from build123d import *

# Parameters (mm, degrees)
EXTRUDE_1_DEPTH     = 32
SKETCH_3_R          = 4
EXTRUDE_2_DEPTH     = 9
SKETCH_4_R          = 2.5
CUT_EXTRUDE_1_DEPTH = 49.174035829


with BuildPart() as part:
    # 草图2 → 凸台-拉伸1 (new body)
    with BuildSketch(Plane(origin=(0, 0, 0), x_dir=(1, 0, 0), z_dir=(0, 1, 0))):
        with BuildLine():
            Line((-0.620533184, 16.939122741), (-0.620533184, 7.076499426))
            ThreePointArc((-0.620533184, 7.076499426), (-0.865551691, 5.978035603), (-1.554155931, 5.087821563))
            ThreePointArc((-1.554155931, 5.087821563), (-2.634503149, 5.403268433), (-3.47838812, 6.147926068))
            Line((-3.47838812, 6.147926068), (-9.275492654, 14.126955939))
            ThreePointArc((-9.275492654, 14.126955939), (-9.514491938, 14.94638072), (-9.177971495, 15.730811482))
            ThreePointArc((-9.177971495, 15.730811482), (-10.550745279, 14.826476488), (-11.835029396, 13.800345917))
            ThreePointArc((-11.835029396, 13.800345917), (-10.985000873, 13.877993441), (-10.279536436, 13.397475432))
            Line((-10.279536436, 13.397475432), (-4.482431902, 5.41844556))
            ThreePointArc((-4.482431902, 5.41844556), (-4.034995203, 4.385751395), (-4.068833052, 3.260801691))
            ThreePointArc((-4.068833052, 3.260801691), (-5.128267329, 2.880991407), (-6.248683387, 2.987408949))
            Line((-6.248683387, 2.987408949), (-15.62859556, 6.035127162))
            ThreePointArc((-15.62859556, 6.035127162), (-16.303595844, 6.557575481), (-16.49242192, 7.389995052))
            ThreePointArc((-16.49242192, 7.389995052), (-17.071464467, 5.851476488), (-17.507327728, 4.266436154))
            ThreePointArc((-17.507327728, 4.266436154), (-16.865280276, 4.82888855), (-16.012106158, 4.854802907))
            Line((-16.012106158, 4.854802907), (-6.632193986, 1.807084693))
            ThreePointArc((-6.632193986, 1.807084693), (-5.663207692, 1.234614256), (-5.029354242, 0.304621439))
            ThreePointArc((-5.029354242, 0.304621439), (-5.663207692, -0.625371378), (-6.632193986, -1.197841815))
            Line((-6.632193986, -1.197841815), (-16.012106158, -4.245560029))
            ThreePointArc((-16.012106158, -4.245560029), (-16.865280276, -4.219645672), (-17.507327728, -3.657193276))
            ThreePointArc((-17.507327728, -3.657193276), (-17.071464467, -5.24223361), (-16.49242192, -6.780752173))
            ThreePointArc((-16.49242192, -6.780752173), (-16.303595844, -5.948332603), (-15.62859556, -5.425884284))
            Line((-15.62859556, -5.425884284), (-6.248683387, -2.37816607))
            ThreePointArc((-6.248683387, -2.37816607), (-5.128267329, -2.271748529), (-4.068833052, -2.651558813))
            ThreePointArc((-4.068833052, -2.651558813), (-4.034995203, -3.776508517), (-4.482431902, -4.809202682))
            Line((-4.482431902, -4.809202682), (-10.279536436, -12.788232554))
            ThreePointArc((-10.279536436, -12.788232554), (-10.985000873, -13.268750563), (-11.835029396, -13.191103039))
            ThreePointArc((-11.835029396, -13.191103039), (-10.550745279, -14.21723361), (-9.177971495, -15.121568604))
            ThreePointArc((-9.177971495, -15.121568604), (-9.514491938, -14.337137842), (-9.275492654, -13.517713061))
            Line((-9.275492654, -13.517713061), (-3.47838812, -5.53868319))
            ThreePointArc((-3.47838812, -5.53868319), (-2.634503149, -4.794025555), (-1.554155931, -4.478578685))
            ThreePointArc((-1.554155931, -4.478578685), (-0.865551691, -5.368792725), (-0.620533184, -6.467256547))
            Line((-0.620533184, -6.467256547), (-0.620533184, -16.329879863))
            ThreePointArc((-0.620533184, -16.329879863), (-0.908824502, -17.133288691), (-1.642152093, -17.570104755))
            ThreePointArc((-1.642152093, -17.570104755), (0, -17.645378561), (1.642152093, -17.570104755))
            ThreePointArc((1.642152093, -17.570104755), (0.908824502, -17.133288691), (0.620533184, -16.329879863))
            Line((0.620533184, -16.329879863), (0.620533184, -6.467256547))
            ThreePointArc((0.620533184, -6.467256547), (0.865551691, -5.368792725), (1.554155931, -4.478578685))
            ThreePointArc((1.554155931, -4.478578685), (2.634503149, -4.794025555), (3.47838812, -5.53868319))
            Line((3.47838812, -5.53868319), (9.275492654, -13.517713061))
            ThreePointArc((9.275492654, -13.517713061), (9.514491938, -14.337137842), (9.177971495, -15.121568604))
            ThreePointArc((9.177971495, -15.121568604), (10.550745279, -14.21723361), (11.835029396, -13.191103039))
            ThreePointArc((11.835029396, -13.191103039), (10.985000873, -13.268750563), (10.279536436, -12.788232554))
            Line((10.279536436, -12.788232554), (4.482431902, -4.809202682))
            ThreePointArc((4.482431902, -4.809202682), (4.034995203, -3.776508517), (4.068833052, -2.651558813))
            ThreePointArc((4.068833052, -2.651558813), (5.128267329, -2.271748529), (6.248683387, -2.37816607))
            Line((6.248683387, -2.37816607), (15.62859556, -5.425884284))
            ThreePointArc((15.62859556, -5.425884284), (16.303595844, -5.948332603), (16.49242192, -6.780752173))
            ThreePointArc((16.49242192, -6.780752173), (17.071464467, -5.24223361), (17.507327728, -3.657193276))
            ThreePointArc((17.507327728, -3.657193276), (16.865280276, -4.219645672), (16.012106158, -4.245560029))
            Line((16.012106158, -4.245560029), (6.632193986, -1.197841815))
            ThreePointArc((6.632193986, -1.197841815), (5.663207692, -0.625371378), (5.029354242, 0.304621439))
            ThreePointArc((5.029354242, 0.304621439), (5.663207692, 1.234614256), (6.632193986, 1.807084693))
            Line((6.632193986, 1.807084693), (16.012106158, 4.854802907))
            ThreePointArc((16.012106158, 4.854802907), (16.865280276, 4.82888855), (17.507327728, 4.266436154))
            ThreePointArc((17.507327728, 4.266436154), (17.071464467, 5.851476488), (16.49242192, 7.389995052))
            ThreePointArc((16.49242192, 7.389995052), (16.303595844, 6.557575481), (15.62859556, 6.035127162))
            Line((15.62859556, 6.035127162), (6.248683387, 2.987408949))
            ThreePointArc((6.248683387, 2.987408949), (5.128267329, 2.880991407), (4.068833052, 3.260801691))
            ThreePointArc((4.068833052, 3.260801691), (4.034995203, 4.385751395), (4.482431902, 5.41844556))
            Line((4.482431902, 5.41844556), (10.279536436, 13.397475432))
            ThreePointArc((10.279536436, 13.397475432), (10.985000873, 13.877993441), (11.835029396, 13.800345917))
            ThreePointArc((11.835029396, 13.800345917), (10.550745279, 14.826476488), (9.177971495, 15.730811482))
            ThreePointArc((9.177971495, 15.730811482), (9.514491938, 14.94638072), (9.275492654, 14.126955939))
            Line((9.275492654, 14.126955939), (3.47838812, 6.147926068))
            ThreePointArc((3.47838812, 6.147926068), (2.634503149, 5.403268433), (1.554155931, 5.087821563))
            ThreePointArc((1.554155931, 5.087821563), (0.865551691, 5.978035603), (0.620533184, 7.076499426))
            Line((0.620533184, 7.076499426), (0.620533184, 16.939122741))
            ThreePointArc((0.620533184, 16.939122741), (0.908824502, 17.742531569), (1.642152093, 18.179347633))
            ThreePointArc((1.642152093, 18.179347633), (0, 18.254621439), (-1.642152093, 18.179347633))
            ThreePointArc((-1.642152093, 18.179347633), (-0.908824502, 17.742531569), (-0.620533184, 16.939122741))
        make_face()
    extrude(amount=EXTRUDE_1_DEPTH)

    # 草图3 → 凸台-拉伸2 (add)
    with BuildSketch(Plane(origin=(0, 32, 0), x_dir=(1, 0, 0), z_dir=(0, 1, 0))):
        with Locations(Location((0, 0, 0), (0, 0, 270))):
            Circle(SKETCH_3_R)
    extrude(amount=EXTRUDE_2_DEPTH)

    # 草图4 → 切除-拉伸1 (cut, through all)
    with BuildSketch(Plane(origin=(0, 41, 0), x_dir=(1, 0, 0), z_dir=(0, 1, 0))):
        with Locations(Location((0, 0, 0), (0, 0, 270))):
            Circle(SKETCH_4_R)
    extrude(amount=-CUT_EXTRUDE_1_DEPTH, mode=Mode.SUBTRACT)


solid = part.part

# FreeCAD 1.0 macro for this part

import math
import FreeCAD as App
import Part
import Sketcher
from FreeCAD import Vector

doc = App.newDocument("Part")
params = doc.addObject("Spreadsheet::Sheet", "Params")
for row, (alias, value) in enumerate([
    ("sketch1_radius", "17.95 mm"),
    ("sketch1_radius2", "17.95 mm"),
    ("sketch1_radius3", "17.95 mm"),
    ("sketch1_radius4", "17.95 mm"),
    ("sketch1_radius5", "17.95 mm"),
    ("pad1_length", "32 mm"),
    ("sketch2_diameter", "8 mm"),
    ("pad2_length", "9 mm"),
    ("sketch3_diameter", "5 mm"),
], start=1):
    params.set(f"A{row}", alias)
    params.set(f"B{row}", "=" + value)
    params.setAlias(f"B{row}", alias)

body = doc.addObject("PartDesign::Body", "Body")

# Sketch on XZ plane
sketch1 = body.newObject("Sketcher::SketchObject", "Sketch")
sketch1.AttachmentSupport = (doc.getObject("XZ_Plane"), [""])
sketch1.MapMode = "FlatFace"
sketch1.addGeometry([
    Part.LineSegment(Vector(-0.620533, -16.939123, 0), Vector(-0.620533, -7.076499, 0)),  # 0
    Part.ArcOfCircle(Part.Circle(Vector(-3.205352, -7.076499, 0), Vector(0, 0, 1), 2.584819), math.radians(0), math.radians(50.297207)),  # 1
    Part.ArcOfCircle(Part.Circle(Vector(-1.387226, -7.667244, 0), Vector(0, 0, 1), 2.584819), math.radians(93.702793), math.radians(144)),  # 2
    Part.LineSegment(Vector(-3.478388, -6.147926, 0), Vector(-9.275493, -14.126956, 0)),  # 3
    Part.ArcOfCircle(Part.Circle(Vector(-8.253208, -14.869689, 0), Vector(0, 0, 1), 1.263614), math.radians(144), math.radians(222.959081)),  # 4
    Part.ArcOfCircle(Part.Circle(Vector(0, -0.304621, 0), Vector(0, 0, 1), 17.95), math.radians(-131.249032), math.radians(-120.750968)),  # 5
    Part.ArcOfCircle(Part.Circle(Vector(-11.301821, -12.654742, 0), Vector(0, 0, 1), 1.263614), math.radians(-114.959081), math.radians(-36)),  # 6
    Part.LineSegment(Vector(-10.279536, -13.397475, 0), Vector(-4.482432, -5.418446, 0)),  # 7
    Part.ArcOfCircle(Part.Circle(Vector(-6.573594, -3.899127, 0), Vector(0, 0, 1), 2.584819), math.radians(-36), math.radians(14.297207)),  # 8
    Part.ArcOfCircle(Part.Circle(Vector(-5.44993, -5.445718, 0), Vector(0, 0, 1), 2.584819), math.radians(57.702793), math.radians(108)),  # 9
    Part.LineSegment(Vector(-6.248683, -2.987409, 0), Vector(-15.628596, -6.035127, 0)),  # 10
    Part.ArcOfCircle(Part.Circle(Vector(-15.238117, -7.236895, 0), Vector(0, 0, 1), 1.263614), math.radians(108), math.radians(186.959081)),  # 11
    Part.ArcOfCircle(Part.Circle(Vector(0, -0.304621, 0), Vector(0, 0, 1), 17.95), math.radians(-167.249032), math.radians(-156.750968)),  # 12
    Part.ArcOfCircle(Part.Circle(Vector(-16.402584, -3.653035, 0), Vector(0, 0, 1), 1.263614), math.radians(-150.959081), math.radians(-72)),  # 13
    Part.LineSegment(Vector(-16.012106, -4.854803, 0), Vector(-6.632194, -1.807085, 0)),  # 14
    Part.ArcOfCircle(Part.Circle(Vector(-7.430947, 0.651224, 0), Vector(0, 0, 1), 2.584819), math.radians(-72), math.radians(-21.702793)),  # 15
    Part.ArcOfCircle(Part.Circle(Vector(-7.430947, -1.260467, 0), Vector(0, 0, 1), 2.584819), math.radians(21.702793), math.radians(72)),  # 16
    Part.LineSegment(Vector(-6.632194, 1.197842, 0), Vector(-16.012106, 4.24556, 0)),  # 17
    Part.ArcOfCircle(Part.Circle(Vector(-16.402584, 3.043792, 0), Vector(0, 0, 1), 1.263614), math.radians(72), math.radians(150.959081)),  # 18
    Part.ArcOfCircle(Part.Circle(Vector(0, -0.304621, 0), Vector(0, 0, 1), 17.95), math.radians(156.750968), math.radians(167.249032)),  # 19
    Part.ArcOfCircle(Part.Circle(Vector(-15.238117, 6.627652, 0), Vector(0, 0, 1), 1.263614), math.radians(173.040919), math.radians(252)),  # 20
    Part.LineSegment(Vector(-15.628596, 5.425884, 0), Vector(-6.248683, 2.378166, 0)),  # 21
    Part.ArcOfCircle(Part.Circle(Vector(-5.44993, 4.836475, 0), Vector(0, 0, 1), 2.584819), math.radians(-108), math.radians(-57.702793)),  # 22
    Part.ArcOfCircle(Part.Circle(Vector(-6.573594, 3.289884, 0), Vector(0, 0, 1), 2.584819), math.radians(-14.297207), math.radians(36)),  # 23
    Part.LineSegment(Vector(-4.482432, 4.809203, 0), Vector(-10.279536, 12.788233, 0)),  # 24
    Part.ArcOfCircle(Part.Circle(Vector(-11.301821, 12.045499, 0), Vector(0, 0, 1), 1.263614), math.radians(36), math.radians(114.959081)),  # 25
    Part.ArcOfCircle(Part.Circle(Vector(0, -0.304621, 0), Vector(0, 0, 1), 17.95), math.radians(120.750968), math.radians(131.249032)),  # 26
    Part.ArcOfCircle(Part.Circle(Vector(-8.253208, 14.260446, 0), Vector(0, 0, 1), 1.263614), math.radians(137.040919), math.radians(216)),  # 27
    Part.LineSegment(Vector(-9.275493, 13.517713, 0), Vector(-3.478388, 5.538683, 0)),  # 28
    Part.ArcOfCircle(Part.Circle(Vector(-1.387226, 7.058002, 0), Vector(0, 0, 1), 2.584819), math.radians(-144), math.radians(-93.702793)),  # 29
    Part.ArcOfCircle(Part.Circle(Vector(-3.205352, 6.467257, 0), Vector(0, 0, 1), 2.584819), math.radians(-50.297207), math.radians(0)),  # 30
    Part.LineSegment(Vector(-0.620533, 6.467257, 0), Vector(-0.620533, 16.32988, 0)),  # 31
    Part.ArcOfCircle(Part.Circle(Vector(-1.884147, 16.32988, 0), Vector(0, 0, 1), 1.263614), math.radians(0), math.radians(78.959081)),  # 32
    Part.ArcOfCircle(Part.Circle(Vector(0, -0.304621, 0), Vector(0, 0, 1), 17.95), math.radians(84.750968), math.radians(95.249032)),  # 33
    Part.ArcOfCircle(Part.Circle(Vector(1.884147, 16.32988, 0), Vector(0, 0, 1), 1.263614), math.radians(101.040919), math.radians(180)),  # 34
    Part.LineSegment(Vector(0.620533, 16.32988, 0), Vector(0.620533, 6.467257, 0)),  # 35
    Part.ArcOfCircle(Part.Circle(Vector(3.205352, 6.467257, 0), Vector(0, 0, 1), 2.584819), math.radians(-180), math.radians(-129.702793)),  # 36
    Part.ArcOfCircle(Part.Circle(Vector(1.387226, 7.058002, 0), Vector(0, 0, 1), 2.584819), math.radians(-86.297207), math.radians(-36)),  # 37
    Part.LineSegment(Vector(3.478388, 5.538683, 0), Vector(9.275493, 13.517713, 0)),  # 38
    Part.ArcOfCircle(Part.Circle(Vector(8.253208, 14.260446, 0), Vector(0, 0, 1), 1.263614), math.radians(-36), math.radians(42.959081)),  # 39
    Part.ArcOfCircle(Part.Circle(Vector(0, -0.304621, 0), Vector(0, 0, 1), 17.95), math.radians(48.750968), math.radians(59.249032)),  # 40
    Part.ArcOfCircle(Part.Circle(Vector(11.301821, 12.045499, 0), Vector(0, 0, 1), 1.263614), math.radians(65.040919), math.radians(144)),  # 41
    Part.LineSegment(Vector(10.279536, 12.788233, 0), Vector(4.482432, 4.809203, 0)),  # 42
    Part.ArcOfCircle(Part.Circle(Vector(6.573594, 3.289884, 0), Vector(0, 0, 1), 2.584819), math.radians(144), math.radians(194.297207)),  # 43
    Part.ArcOfCircle(Part.Circle(Vector(5.44993, 4.836475, 0), Vector(0, 0, 1), 2.584819), math.radians(-122.297207), math.radians(-72)),  # 44
    Part.LineSegment(Vector(6.248683, 2.378166, 0), Vector(15.628596, 5.425884, 0)),  # 45
    Part.ArcOfCircle(Part.Circle(Vector(15.238117, 6.627652, 0), Vector(0, 0, 1), 1.263614), math.radians(-72), math.radians(6.959081)),  # 46
    Part.ArcOfCircle(Part.Circle(Vector(0, -0.304621, 0), Vector(0, 0, 1), 17.95), math.radians(12.750968), math.radians(23.249032)),  # 47
    Part.ArcOfCircle(Part.Circle(Vector(16.402584, 3.043792, 0), Vector(0, 0, 1), 1.263614), math.radians(29.040919), math.radians(108)),  # 48
    Part.LineSegment(Vector(16.012106, 4.24556, 0), Vector(6.632194, 1.197842, 0)),  # 49
    Part.ArcOfCircle(Part.Circle(Vector(7.430947, -1.260467, 0), Vector(0, 0, 1), 2.584819), math.radians(108), math.radians(158.297207)),  # 50
    Part.ArcOfCircle(Part.Circle(Vector(7.430947, 0.651224, 0), Vector(0, 0, 1), 2.584819), math.radians(-158.297207), math.radians(-108)),  # 51
    Part.LineSegment(Vector(6.632194, -1.807085, 0), Vector(16.012106, -4.854803, 0)),  # 52
    Part.ArcOfCircle(Part.Circle(Vector(16.402584, -3.653035, 0), Vector(0, 0, 1), 1.263614), math.radians(-108), math.radians(-29.040919)),  # 53
    Part.ArcOfCircle(Part.Circle(Vector(0, -0.304621, 0), Vector(0, 0, 1), 17.95), math.radians(-23.249032), math.radians(-12.750968)),  # 54
    Part.ArcOfCircle(Part.Circle(Vector(15.238117, -7.236895, 0), Vector(0, 0, 1), 1.263614), math.radians(-6.959081), math.radians(72)),  # 55
    Part.LineSegment(Vector(15.628596, -6.035127, 0), Vector(6.248683, -2.987409, 0)),  # 56
    Part.ArcOfCircle(Part.Circle(Vector(5.44993, -5.445718, 0), Vector(0, 0, 1), 2.584819), math.radians(72), math.radians(122.297207)),  # 57
    Part.ArcOfCircle(Part.Circle(Vector(6.573594, -3.899127, 0), Vector(0, 0, 1), 2.584819), math.radians(165.702793), math.radians(216)),  # 58
    Part.LineSegment(Vector(4.482432, -5.418446, 0), Vector(10.279536, -13.397475, 0)),  # 59
    Part.ArcOfCircle(Part.Circle(Vector(11.301821, -12.654742, 0), Vector(0, 0, 1), 1.263614), math.radians(-144), math.radians(-65.040919)),  # 60
    Part.ArcOfCircle(Part.Circle(Vector(0, -0.304621, 0), Vector(0, 0, 1), 17.95), math.radians(-59.249032), math.radians(-48.750968)),  # 61
    Part.ArcOfCircle(Part.Circle(Vector(8.253208, -14.869689, 0), Vector(0, 0, 1), 1.263614), math.radians(-42.959081), math.radians(36)),  # 62
    Part.LineSegment(Vector(9.275493, -14.126956, 0), Vector(3.478388, -6.147926, 0)),  # 63
    Part.ArcOfCircle(Part.Circle(Vector(1.387226, -7.667244, 0), Vector(0, 0, 1), 2.584819), math.radians(36), math.radians(86.297207)),  # 64
    Part.ArcOfCircle(Part.Circle(Vector(3.205352, -7.076499, 0), Vector(0, 0, 1), 2.584819), math.radians(129.702793), math.radians(180)),  # 65
    Part.LineSegment(Vector(0.620533, -7.076499, 0), Vector(0.620533, -16.939123, 0)),  # 66
    Part.ArcOfCircle(Part.Circle(Vector(1.884147, -16.939123, 0), Vector(0, 0, 1), 1.263614), math.radians(180), math.radians(258.959081)),  # 67
    Part.ArcOfCircle(Part.Circle(Vector(0, -0.304621, 0), Vector(0, 0, 1), 17.95), math.radians(-95.249032), math.radians(-84.750968)),  # 68
    Part.ArcOfCircle(Part.Circle(Vector(-1.884147, -16.939123, 0), Vector(0, 0, 1), 1.263614), math.radians(-78.959081), math.radians(0)),  # 69
], False)
sketch1.addConstraint([
    Sketcher.Constraint("Coincident", 0, 2, 1, 1),
    Sketcher.Constraint("Coincident", 1, 2, 2, 1),
    Sketcher.Constraint("Coincident", 2, 2, 3, 1),
    Sketcher.Constraint("Coincident", 3, 2, 4, 1),
    Sketcher.Constraint("Coincident", 4, 2, 5, 2),
    Sketcher.Constraint("Coincident", 5, 1, 6, 1),
    Sketcher.Constraint("Coincident", 6, 2, 7, 1),
    Sketcher.Constraint("Coincident", 7, 2, 8, 1),
    Sketcher.Constraint("Coincident", 8, 2, 9, 1),
    Sketcher.Constraint("Coincident", 9, 2, 10, 1),
    Sketcher.Constraint("Coincident", 10, 2, 11, 1),
    Sketcher.Constraint("Coincident", 11, 2, 12, 2),
    Sketcher.Constraint("Coincident", 12, 1, 13, 1),
    Sketcher.Constraint("Coincident", 13, 2, 14, 1),
    Sketcher.Constraint("Coincident", 14, 2, 15, 1),
    Sketcher.Constraint("Coincident", 15, 2, 16, 1),
    Sketcher.Constraint("Coincident", 16, 2, 17, 1),
    Sketcher.Constraint("Coincident", 17, 2, 18, 1),
    Sketcher.Constraint("Coincident", 18, 2, 19, 2),
    Sketcher.Constraint("Coincident", 19, 1, 20, 1),
    Sketcher.Constraint("Coincident", 20, 2, 21, 1),
    Sketcher.Constraint("Coincident", 21, 2, 22, 1),
    Sketcher.Constraint("Coincident", 22, 2, 23, 1),
    Sketcher.Constraint("Coincident", 23, 2, 24, 1),
    Sketcher.Constraint("Coincident", 24, 2, 25, 1),
    Sketcher.Constraint("Coincident", 25, 2, 26, 2),
    Sketcher.Constraint("Coincident", 26, 1, 27, 1),
    Sketcher.Constraint("Coincident", 27, 2, 28, 1),
    Sketcher.Constraint("Coincident", 28, 2, 29, 1),
    Sketcher.Constraint("Coincident", 29, 2, 30, 1),
    Sketcher.Constraint("Coincident", 30, 2, 31, 1),
    Sketcher.Constraint("Coincident", 31, 2, 32, 1),
    Sketcher.Constraint("Coincident", 32, 2, 33, 2),
    Sketcher.Constraint("Coincident", 33, 1, 34, 1),
    Sketcher.Constraint("Coincident", 34, 2, 35, 1),
    Sketcher.Constraint("Coincident", 35, 2, 36, 1),
    Sketcher.Constraint("Coincident", 36, 2, 37, 1),
    Sketcher.Constraint("Coincident", 37, 2, 38, 1),
    Sketcher.Constraint("Coincident", 38, 2, 39, 1),
    Sketcher.Constraint("Coincident", 39, 2, 40, 2),
    Sketcher.Constraint("Coincident", 40, 1, 41, 1),
    Sketcher.Constraint("Coincident", 41, 2, 42, 1),
    Sketcher.Constraint("Coincident", 42, 2, 43, 1),
    Sketcher.Constraint("Coincident", 43, 2, 44, 1),
    Sketcher.Constraint("Coincident", 44, 2, 45, 1),
    Sketcher.Constraint("Coincident", 45, 2, 46, 1),
    Sketcher.Constraint("Coincident", 46, 2, 47, 2),
    Sketcher.Constraint("Coincident", 47, 1, 48, 1),
    Sketcher.Constraint("Coincident", 48, 2, 49, 1),
    Sketcher.Constraint("Coincident", 49, 2, 50, 1),
    Sketcher.Constraint("Coincident", 50, 2, 51, 1),
    Sketcher.Constraint("Coincident", 51, 2, 52, 1),
    Sketcher.Constraint("Coincident", 52, 2, 53, 1),
    Sketcher.Constraint("Coincident", 53, 2, 54, 2),
    Sketcher.Constraint("Coincident", 54, 1, 55, 1),
    Sketcher.Constraint("Coincident", 55, 2, 56, 1),
    Sketcher.Constraint("Coincident", 56, 2, 57, 1),
    Sketcher.Constraint("Coincident", 57, 2, 58, 1),
    Sketcher.Constraint("Coincident", 58, 2, 59, 1),
    Sketcher.Constraint("Coincident", 59, 2, 60, 1),
    Sketcher.Constraint("Coincident", 60, 2, 61, 2),
    Sketcher.Constraint("Coincident", 61, 1, 62, 1),
    Sketcher.Constraint("Coincident", 62, 2, 63, 1),
    Sketcher.Constraint("Coincident", 63, 2, 64, 1),
    Sketcher.Constraint("Coincident", 64, 2, 65, 1),
    Sketcher.Constraint("Coincident", 65, 2, 66, 1),
    Sketcher.Constraint("Coincident", 66, 2, 67, 1),
    Sketcher.Constraint("Coincident", 67, 2, 68, 2),
    Sketcher.Constraint("Coincident", 68, 1, 69, 1),
    Sketcher.Constraint("Coincident", 69, 2, 0, 1),
    Sketcher.Constraint("Vertical", 0),
    Sketcher.Constraint("Vertical", 31),
    Sketcher.Constraint("Vertical", 35),
    Sketcher.Constraint("Vertical", 66),
    Sketcher.Constraint("Coincident", 12, 3, 5, 3),
    Sketcher.Constraint("Coincident", 19, 3, 5, 3),
    Sketcher.Constraint("Coincident", 26, 3, 5, 3),
    Sketcher.Constraint("Coincident", 33, 3, 5, 3),
    Sketcher.Constraint("Coincident", 40, 3, 5, 3),
    Sketcher.Constraint("Coincident", 47, 3, 5, 3),
    Sketcher.Constraint("Coincident", 54, 3, 5, 3),
    Sketcher.Constraint("Coincident", 61, 3, 5, 3),
    Sketcher.Constraint("Coincident", 68, 3, 5, 3),
    Sketcher.Constraint("PointOnObject", 5, 3, -2),
    Sketcher.Constraint("Radius", 5, 17.95),
    Sketcher.Constraint("Radius", 12, 17.95),
    Sketcher.Constraint("Radius", 19, 17.95),
    Sketcher.Constraint("Radius", 26, 17.95),
    Sketcher.Constraint("Radius", 33, 17.95),
    Sketcher.Constraint("Radius", 40, 17.95),
    Sketcher.Constraint("Radius", 47, 17.95),
    Sketcher.Constraint("Radius", 54, 17.95),
    Sketcher.Constraint("Radius", 61, 17.95),
    Sketcher.Constraint("Radius", 68, 17.95),
    Sketcher.Constraint("Radius", 1, 2.584819),
    Sketcher.Constraint("Radius", 2, 2.584819),
    Sketcher.Constraint("Radius", 8, 2.584819),
    Sketcher.Constraint("Radius", 9, 2.584819),
    Sketcher.Constraint("Radius", 15, 2.584819),
    Sketcher.Constraint("Radius", 16, 2.584819),
    Sketcher.Constraint("Radius", 22, 2.584819),
    Sketcher.Constraint("Radius", 23, 2.584819),
    Sketcher.Constraint("Radius", 29, 2.584819),
    Sketcher.Constraint("Radius", 30, 2.584819),
    Sketcher.Constraint("Radius", 36, 2.584819),
    Sketcher.Constraint("Radius", 37, 2.584819),
    Sketcher.Constraint("Radius", 43, 2.584819),
    Sketcher.Constraint("Radius", 44, 2.584819),
    Sketcher.Constraint("Radius", 50, 2.584819),
    Sketcher.Constraint("Radius", 51, 2.584819),
    Sketcher.Constraint("Radius", 57, 2.584819),
    Sketcher.Constraint("Radius", 58, 2.584819),
    Sketcher.Constraint("Radius", 64, 2.584819),
    Sketcher.Constraint("Radius", 65, 2.584819),
    Sketcher.Constraint("DistanceY", -1, 1, 29, 3, 7.058002),
    Sketcher.Constraint("DistanceY", -1, 1, 37, 3, 7.058002),
    Sketcher.Constraint("Radius", 4, 1.263614),
    Sketcher.Constraint("Radius", 6, 1.263614),
    Sketcher.Constraint("Radius", 11, 1.263614),
    Sketcher.Constraint("Radius", 13, 1.263614),
    Sketcher.Constraint("Radius", 18, 1.263614),
    Sketcher.Constraint("Radius", 20, 1.263614),
    Sketcher.Constraint("Radius", 25, 1.263614),
    Sketcher.Constraint("Radius", 27, 1.263614),
    Sketcher.Constraint("Radius", 32, 1.263614),
    Sketcher.Constraint("Radius", 34, 1.263614),
    Sketcher.Constraint("Radius", 39, 1.263614),
    Sketcher.Constraint("Radius", 41, 1.263614),
    Sketcher.Constraint("Radius", 46, 1.263614),
    Sketcher.Constraint("Radius", 48, 1.263614),
    Sketcher.Constraint("Radius", 53, 1.263614),
    Sketcher.Constraint("Radius", 55, 1.263614),
    Sketcher.Constraint("Radius", 60, 1.263614),
    Sketcher.Constraint("Radius", 62, 1.263614),
    Sketcher.Constraint("Radius", 67, 1.263614),
    Sketcher.Constraint("Radius", 69, 1.263614),
    Sketcher.Constraint("DistanceY", 1, 3, -1, 1, 7.076499),
    Sketcher.Constraint("DistanceY", -1, 1, 25, 3, 12.045499),
    Sketcher.Constraint("DistanceY", -1, 1, 41, 3, 12.045499),
    Sketcher.Constraint("DistanceY", 65, 3, -1, 1, 7.076499),
    Sketcher.Constraint("DistanceY", 0, 2, -1, 1, 7.076499),
    Sketcher.Constraint("DistanceY", 8, 2, -1, 1, 3.260802),
    Sketcher.Constraint("DistanceY", 57, 2, -1, 1, 3.260802),
    Sketcher.Constraint("DistanceY", 65, 2, -1, 1, 7.076499),
    Sketcher.Constraint("DistanceY", 0, 1, 0, 2, 9.862623),
    Sketcher.Constraint("DistanceY", 31, 1, 31, 2, 9.862623),
    Sketcher.Constraint("DistanceY", 35, 2, 35, 1, 9.862623),
    Sketcher.Constraint("DistanceY", 66, 2, 66, 1, 9.862623),
    Sketcher.Constraint("DistanceX", 1, 3, -1, 1, 3.205352),
    Sketcher.Constraint("DistanceY", 4, 3, -1, 1, 14.869689),
    Sketcher.Constraint("DistanceY", 5, 3, -1, 1, 0.304621),
    Sketcher.Constraint("DistanceX", 6, 3, -1, 1, 11.301821),
    Sketcher.Constraint("DistanceX", 9, 3, -1, 1, 5.44993),
    Sketcher.Constraint("DistanceX", 22, 3, -1, 1, 5.44993),
    Sketcher.Constraint("DistanceX", 25, 3, -1, 1, 11.301821),
    Sketcher.Constraint("DistanceX", 30, 3, -1, 1, 3.205352),
    Sketcher.Constraint("DistanceY", -1, 1, 32, 3, 16.32988),
    Sketcher.Constraint("DistanceY", -1, 1, 34, 3, 16.32988),
    Sketcher.Constraint("DistanceX", -1, 1, 36, 3, 3.205352),
    Sketcher.Constraint("DistanceX", -1, 1, 41, 3, 11.301821),
    Sketcher.Constraint("DistanceX", -1, 1, 44, 3, 5.44993),
    Sketcher.Constraint("DistanceX", -1, 1, 57, 3, 5.44993),
    Sketcher.Constraint("DistanceX", -1, 1, 60, 3, 11.301821),
    Sketcher.Constraint("DistanceY", 62, 3, -1, 1, 14.869689),
    Sketcher.Constraint("DistanceX", -1, 1, 65, 3, 3.205352),
    Sketcher.Constraint("DistanceY", 1, 2, -1, 1, 5.087822),
    Sketcher.Constraint("DistanceX", 2, 2, -1, 1, 3.478388),
    Sketcher.Constraint("DistanceX", 4, 2, -1, 1, 9.177971),
    Sketcher.Constraint("DistanceX", 5, 1, -1, 1, 11.835029),
    Sketcher.Constraint("DistanceX", 7, 2, -1, 1, 4.482432),
    Sketcher.Constraint("DistanceY", 9, 2, -1, 1, 2.987409),
    Sketcher.Constraint("DistanceX", 11, 2, -1, 1, 16.492422),
    Sketcher.Constraint("DistanceY", 15, 2, -1, 1, 0.304621),
    Sketcher.Constraint("DistanceY", -1, 1, 16, 2, 1.197842),
    Sketcher.Constraint("DistanceY", -1, 1, 17, 2, 4.24556),
    Sketcher.Constraint("DistanceX", 19, 1, -1, 1, 16.492422),
    Sketcher.Constraint("DistanceY", -1, 1, 22, 2, 2.651559),
    Sketcher.Constraint("DistanceX", 23, 2, -1, 1, 4.482432),
    Sketcher.Constraint("DistanceX", 26, 1, -1, 1, 9.177971),
    Sketcher.Constraint("DistanceX", 28, 2, -1, 1, 3.478388),
    Sketcher.Constraint("DistanceY", -1, 1, 29, 2, 4.478579),
    Sketcher.Constraint("DistanceY", -1, 1, 31, 2, 16.32988),
    Sketcher.Constraint("DistanceY", -1, 1, 34, 2, 16.32988),
    Sketcher.Constraint("DistanceY", -1, 1, 36, 2, 4.478579),
    Sketcher.Constraint("DistanceX", -1, 1, 37, 2, 3.478388),
    Sketcher.Constraint("DistanceX", -1, 1, 39, 2, 9.177971),
    Sketcher.Constraint("DistanceX", -1, 1, 42, 2, 4.482432),
    Sketcher.Constraint("DistanceY", -1, 1, 43, 2, 2.651559),
    Sketcher.Constraint("DistanceX", -1, 1, 46, 2, 16.492422),
    Sketcher.Constraint("DistanceY", -1, 1, 48, 2, 4.24556),
    Sketcher.Constraint("DistanceY", -1, 1, 49, 2, 1.197842),
    Sketcher.Constraint("DistanceY", 50, 2, -1, 1, 0.304621),
    Sketcher.Constraint("DistanceX", -1, 1, 54, 1, 16.492422),
    Sketcher.Constraint("DistanceY", 56, 2, -1, 1, 2.987409),
    Sketcher.Constraint("DistanceX", -1, 1, 58, 2, 4.482432),
    Sketcher.Constraint("DistanceX", -1, 1, 60, 2, 11.835029),
    Sketcher.Constraint("DistanceX", -1, 1, 61, 1, 9.177971),
    Sketcher.Constraint("DistanceX", -1, 1, 63, 2, 3.478388),
    Sketcher.Constraint("DistanceY", 64, 2, -1, 1, 5.087822),
    Sketcher.Constraint("Distance", 3, 9.862623),
    Sketcher.Constraint("Distance", 7, 9.862623),
    Sketcher.Constraint("Distance", 10, 9.862623),
    Sketcher.Constraint("Distance", 14, 9.862623),
    Sketcher.Constraint("Distance", 17, 9.862623),
    Sketcher.Constraint("Distance", 21, 9.862623),
    Sketcher.Constraint("Distance", 24, 9.862623),
    Sketcher.Constraint("Distance", 28, 9.862623),
    Sketcher.Constraint("Distance", 38, 9.862623),
    Sketcher.Constraint("Distance", 42, 9.862623),
    Sketcher.Constraint("Distance", 45, 9.862623),
    Sketcher.Constraint("Distance", 49, 9.862623),
    Sketcher.Constraint("Distance", 52, 9.862623),
    Sketcher.Constraint("Distance", 56, 9.862623),
    Sketcher.Constraint("Distance", 59, 9.862623),
    Sketcher.Constraint("Distance", 63, 9.862623),
    Sketcher.Constraint("DistanceX", 2, 3, -1, 1, 1.387226),
    Sketcher.Constraint("DistanceX", 8, 3, -1, 1, 6.573594),
    Sketcher.Constraint("DistanceY", 8, 3, -1, 1, 3.899127),
    Sketcher.Constraint("DistanceX", 11, 3, -1, 1, 15.238117),
    Sketcher.Constraint("DistanceX", 13, 3, -1, 1, 16.402584),
    Sketcher.Constraint("DistanceY", 13, 3, -1, 1, 3.653035),
    Sketcher.Constraint("DistanceX", 15, 3, -1, 1, 7.430947),
    Sketcher.Constraint("DistanceY", -1, 1, 15, 3, 0.651224),
    Sketcher.Constraint("DistanceX", 16, 3, -1, 1, 7.430947),
    Sketcher.Constraint("DistanceX", 18, 3, -1, 1, 16.402584),
    Sketcher.Constraint("DistanceX", 20, 3, -1, 1, 15.238117),
    Sketcher.Constraint("DistanceY", -1, 1, 22, 3, 4.836475),
    Sketcher.Constraint("DistanceX", 23, 3, -1, 1, 6.573594),
    Sketcher.Constraint("DistanceX", 27, 3, -1, 1, 8.253208),
    Sketcher.Constraint("DistanceX", 29, 3, -1, 1, 1.387226),
    Sketcher.Constraint("DistanceY", -1, 1, 36, 3, 6.467257),
    Sketcher.Constraint("DistanceX", -1, 1, 39, 3, 8.253208),
    Sketcher.Constraint("DistanceX", -1, 1, 43, 3, 6.573594),
    Sketcher.Constraint("DistanceY", -1, 1, 43, 3, 3.289884),
    Sketcher.Constraint("DistanceX", -1, 1, 46, 3, 15.238117),
    Sketcher.Constraint("DistanceX", -1, 1, 48, 3, 16.402584),
    Sketcher.Constraint("DistanceY", -1, 1, 48, 3, 3.043792),
    Sketcher.Constraint("DistanceX", -1, 1, 50, 3, 7.430947),
    Sketcher.Constraint("DistanceX", -1, 1, 51, 3, 7.430947),
    Sketcher.Constraint("DistanceX", -1, 1, 53, 3, 16.402584),
    Sketcher.Constraint("DistanceY", 53, 3, -1, 1, 3.653035),
    Sketcher.Constraint("DistanceX", -1, 1, 55, 3, 15.238117),
    Sketcher.Constraint("DistanceY", 57, 3, -1, 1, 5.445718),
    Sketcher.Constraint("DistanceX", -1, 1, 58, 3, 6.573594),
    Sketcher.Constraint("DistanceX", -1, 1, 64, 3, 1.387226),
    Sketcher.Constraint("DistanceY", 67, 3, -1, 1, 16.939123),
    Sketcher.Constraint("DistanceY", 69, 3, -1, 1, 16.939123),
    Sketcher.Constraint("DistanceX", 13, 2, -1, 1, 16.012106),
    Sketcher.Constraint("DistanceX", 20, 2, -1, 1, 15.628596),
    Sketcher.Constraint("DistanceX", -1, 1, 44, 2, 6.248683),
    Sketcher.Constraint("DistanceX", -1, 1, 51, 2, 6.632194),
])
sketch1.setExpression("Constraints[84]", "Params.sketch1_radius")
sketch1.setExpression("Constraints[85]", "Params.sketch1_radius2")
sketch1.setExpression("Constraints[86]", "Params.sketch1_radius3")
sketch1.setExpression("Constraints[87]", "Params.sketch1_radius4")
sketch1.setExpression("Constraints[88]", "Params.sketch1_radius5")
pad1 = body.newObject("PartDesign::Pad", "Pad")
pad1.Profile = sketch1
pad1.setExpression("Length", "Params.pad1_length")
pad1.Reversed = True

# Sketch on XZ plane
sketch2 = body.newObject("Sketcher::SketchObject", "Sketch001")
sketch2.AttachmentSupport = (doc.getObject("XZ_Plane"), [""])
sketch2.MapMode = "FlatFace"
sketch2.AttachmentOffset = App.Placement(Vector(0, 0, -32), App.Rotation())
sketch2.addGeometry(Part.Circle(Vector(0, 0, 0), Vector(0, 0, 1), 4), False)
sketch2.addConstraint([
    Sketcher.Constraint("Coincident", 0, 3, -1, 1),
    Sketcher.Constraint("Diameter", 0, 8.0),
])
sketch2.setExpression("Constraints[1]", "Params.sketch2_diameter")
pad2 = body.newObject("PartDesign::Pad", "Pad001")
pad2.Profile = sketch2
pad2.setExpression("Length", "Params.pad2_length")
pad2.Reversed = True

# Sketch on XZ plane
sketch3 = body.newObject("Sketcher::SketchObject", "Sketch002")
sketch3.AttachmentSupport = (doc.getObject("XZ_Plane"), [""])
sketch3.MapMode = "FlatFace"
sketch3.AttachmentOffset = App.Placement(Vector(0, 0, -41), App.Rotation())
sketch3.addGeometry(Part.Circle(Vector(0, 0, 0), Vector(0, 0, 1), 2.5), False)
sketch3.addConstraint([
    Sketcher.Constraint("Coincident", 0, 3, -1, 1),
    Sketcher.Constraint("Diameter", 0, 5.0),
])
sketch3.setExpression("Constraints[1]", "Params.sketch3_diameter")
pocket1 = body.newObject("PartDesign::Pocket", "Pocket")
pocket1.Profile = sketch3
pocket1.Type = "ThroughAll"
pocket1.Reversed = True

doc.recompute()
